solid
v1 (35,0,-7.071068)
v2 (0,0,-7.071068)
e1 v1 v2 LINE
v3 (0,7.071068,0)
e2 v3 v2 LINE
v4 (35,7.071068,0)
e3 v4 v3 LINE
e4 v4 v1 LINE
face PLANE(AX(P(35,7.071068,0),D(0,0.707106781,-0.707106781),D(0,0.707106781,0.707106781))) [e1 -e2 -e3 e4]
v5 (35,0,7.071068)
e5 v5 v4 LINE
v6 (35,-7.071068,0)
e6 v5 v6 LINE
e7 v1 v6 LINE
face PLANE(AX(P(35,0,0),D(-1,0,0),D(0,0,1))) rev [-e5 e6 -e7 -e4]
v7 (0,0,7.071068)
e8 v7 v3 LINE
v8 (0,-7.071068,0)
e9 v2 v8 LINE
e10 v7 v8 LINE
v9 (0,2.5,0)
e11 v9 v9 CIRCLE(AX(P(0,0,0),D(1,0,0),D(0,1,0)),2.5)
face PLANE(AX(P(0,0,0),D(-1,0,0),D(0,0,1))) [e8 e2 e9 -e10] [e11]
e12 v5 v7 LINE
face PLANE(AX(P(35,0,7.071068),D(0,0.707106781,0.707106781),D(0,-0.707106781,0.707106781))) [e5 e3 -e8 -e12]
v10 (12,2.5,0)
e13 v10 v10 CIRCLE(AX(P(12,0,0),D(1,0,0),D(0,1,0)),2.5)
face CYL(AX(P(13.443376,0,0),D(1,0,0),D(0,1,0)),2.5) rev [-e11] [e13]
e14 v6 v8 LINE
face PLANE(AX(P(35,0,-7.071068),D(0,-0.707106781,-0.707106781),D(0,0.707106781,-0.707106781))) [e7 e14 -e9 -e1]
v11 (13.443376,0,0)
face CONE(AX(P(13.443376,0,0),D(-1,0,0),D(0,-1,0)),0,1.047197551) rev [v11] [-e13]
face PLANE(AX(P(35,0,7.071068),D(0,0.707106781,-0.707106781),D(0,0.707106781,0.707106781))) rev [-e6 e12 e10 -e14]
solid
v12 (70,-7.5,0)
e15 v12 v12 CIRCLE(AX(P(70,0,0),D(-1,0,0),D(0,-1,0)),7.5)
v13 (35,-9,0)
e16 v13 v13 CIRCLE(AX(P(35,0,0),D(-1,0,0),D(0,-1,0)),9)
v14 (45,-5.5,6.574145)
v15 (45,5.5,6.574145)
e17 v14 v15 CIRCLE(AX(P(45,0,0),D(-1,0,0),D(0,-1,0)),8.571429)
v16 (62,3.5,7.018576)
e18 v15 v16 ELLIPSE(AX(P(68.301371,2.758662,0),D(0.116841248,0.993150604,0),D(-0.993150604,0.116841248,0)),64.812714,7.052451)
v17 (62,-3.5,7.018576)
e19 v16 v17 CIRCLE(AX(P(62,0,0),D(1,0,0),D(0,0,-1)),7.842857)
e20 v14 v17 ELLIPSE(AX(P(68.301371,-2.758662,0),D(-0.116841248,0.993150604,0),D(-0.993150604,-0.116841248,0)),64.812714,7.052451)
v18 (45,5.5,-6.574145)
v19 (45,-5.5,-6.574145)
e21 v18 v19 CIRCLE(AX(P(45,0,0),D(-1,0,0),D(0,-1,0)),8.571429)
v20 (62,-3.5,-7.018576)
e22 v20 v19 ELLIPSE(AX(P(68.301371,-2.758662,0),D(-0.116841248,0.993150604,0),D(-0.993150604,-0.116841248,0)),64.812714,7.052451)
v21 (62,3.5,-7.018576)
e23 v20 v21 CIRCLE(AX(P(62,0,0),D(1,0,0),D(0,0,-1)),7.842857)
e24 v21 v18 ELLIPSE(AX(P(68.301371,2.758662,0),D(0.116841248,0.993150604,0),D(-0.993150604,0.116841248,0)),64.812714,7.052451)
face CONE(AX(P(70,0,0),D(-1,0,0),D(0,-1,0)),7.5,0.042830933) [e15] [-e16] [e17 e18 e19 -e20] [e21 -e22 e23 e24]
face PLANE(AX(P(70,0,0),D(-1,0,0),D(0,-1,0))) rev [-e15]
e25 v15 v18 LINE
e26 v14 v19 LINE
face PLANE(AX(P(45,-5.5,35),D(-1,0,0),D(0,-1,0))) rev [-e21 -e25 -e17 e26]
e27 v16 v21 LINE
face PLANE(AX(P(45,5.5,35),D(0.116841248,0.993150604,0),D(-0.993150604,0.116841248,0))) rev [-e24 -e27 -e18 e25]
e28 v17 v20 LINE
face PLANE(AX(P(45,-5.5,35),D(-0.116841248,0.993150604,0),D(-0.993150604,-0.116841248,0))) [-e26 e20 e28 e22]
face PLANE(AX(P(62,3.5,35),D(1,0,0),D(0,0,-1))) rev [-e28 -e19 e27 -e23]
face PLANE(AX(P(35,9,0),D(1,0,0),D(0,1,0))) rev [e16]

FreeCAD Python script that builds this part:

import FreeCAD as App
import Part
import Sketcher

V = App.Vector
Q = App.Units.Quantity


def add_polygon(sketch, points):
    """Adds a closed chain of lines whose ends are joined by coincident constraints."""
    first, n = sketch.GeometryCount, len(points)
    for a, b in zip(points, points[1:] + points[:1]):
        sketch.addGeometry(Part.LineSegment(App.Vector(*a, 0), App.Vector(*b, 0)), False)
    for i in range(n):
        sketch.addConstraint(Sketcher.Constraint("Coincident", first + i, 2, first + (i + 1) % n, 1))

doc = App.newDocument("Part")
body = doc.addObject("PartDesign::Body", "Body")

# Sketch on YZ plane
sketch1 = body.newObject("Sketcher::SketchObject", "Sketch")
sketch1.AttachmentSupport = (doc.getObject("YZ_Plane"), [""])
sketch1.MapMode = "FlatFace"
add_polygon(sketch1, [(0, -7), (7, 0), (0, 7), (-7, 0)])  # lines 0-3
sketch1.addConstraint([
    Sketcher.Constraint("Symmetric", 0, 2, 2, 2, -1, 1),
    Sketcher.Constraint("Symmetric", 1, 2, 3, 2, -1, 1),
    Sketcher.Constraint("PointOnObject", 0, 2, -1),
    Sketcher.Constraint("PointOnObject", 1, 2, -2),
    Sketcher.Constraint("Perpendicular", 0, 1),
    Sketcher.Constraint("Distance", 0, 10.0),
])
pad1 = body.newObject("PartDesign::Pad", "Pad")
pad1.Profile = sketch1
pad1.Length = 35

# Sketch on XY plane
sketch2 = body.newObject("Sketcher::SketchObject", "Sketch001")
sketch2.AttachmentSupport = (doc.getObject("XY_Plane"), [""])
sketch2.MapMode = "FlatFace"
add_polygon(sketch2, [(13.4, 0), (12, 2.5), (0, 2.5), (0, 4), (-2, 0)])  # lines 0-4
sketch2.addConstraint([
    Sketcher.Constraint("Horizontal", 1),
    Sketcher.Constraint("Vertical", 2),
    Sketcher.Constraint("Horizontal", 4),
    Sketcher.Constraint("PointOnObject", 1, 2, -2),
    Sketcher.Constraint("PointOnObject", 3, 2, -1),
    Sketcher.Constraint("DistanceX", 1, 2, 1, 1, 12.0),
    Sketcher.Constraint("Angle", 0, Q("120 deg")),
    Sketcher.Constraint("DistanceY", -1, 1, 0, 2, 2.5),
    Sketcher.Constraint("DistanceY", 2, 1, 2, 2, 1.498542),
    Sketcher.Constraint("Distance", 3, 4.491069),
])
groove = body.newObject("PartDesign::Groove", "Groove")
groove.Profile = sketch2
groove.ReferenceAxis = (sketch2, ["H_Axis"])
groove.Angle = 360
body2 = doc.addObject("PartDesign::Body", "Body001")

# Sketch on XY plane
sketch3 = body2.newObject("Sketcher::SketchObject", "Sketch002")
sketch3.AttachmentSupport = (doc.getObject("XY_Plane001"), [""])
sketch3.MapMode = "FlatFace"
add_polygon(sketch3, [(70, 0), (70, 8), (35, 9), (35, 0)])  # lines 0-3
sketch3.addConstraint([
    Sketcher.Constraint("Vertical", 0),
    Sketcher.Constraint("Vertical", 2),
    Sketcher.Constraint("Horizontal", 3),
    Sketcher.Constraint("PointOnObject", 2, 2, -1),
    Sketcher.Constraint("DistanceX", 3, 1, 3, 2, 35.0),
    Sketcher.Constraint("DistanceY", 2, 2, 2, 1, 9.0),
    Sketcher.Constraint("DistanceY", 0, 1, 0, 2, 7.5),
    Sketcher.Constraint("DistanceX", -1, 1, 0, 2, 70.0),
])
revolution = body2.newObject("PartDesign::Revolution", "Revolution")
revolution.Profile = sketch3
revolution.ReferenceAxis = (sketch3, ["H_Axis"])
revolution.Angle = 360

# Sketch on XY plane
sketch4 = body2.newObject("Sketcher::SketchObject", "Sketch003")
sketch4.AttachmentSupport = (doc.getObject("XY_Plane001"), [""])
sketch4.MapMode = "FlatFace"
add_polygon(sketch4, [(45, 6), (45, -6), (62, -4), (62, 4)])  # lines 0-3
sketch4.addConstraint([
    Sketcher.Constraint("Vertical", 0),
    Sketcher.Constraint("Vertical", 2),
    Sketcher.Constraint("Equal", 1, 3),
    Sketcher.Constraint("DistanceY", 0, 2, 0, 1, 11.0),
    Sketcher.Constraint("DistanceY", 2, 1, 2, 2, 7.0),
    Sketcher.Constraint("DistanceX", -1, 1, 0, 2, 45.0),
    Sketcher.Constraint("DistanceX", -1, 1, 1, 2, 62.0),
    Sketcher.Constraint("DistanceY", 0, 2, -1, 1, 5.5),
])
pocket1 = body2.newObject("PartDesign::Pocket", "Pocket")
pocket1.Profile = sketch4
pocket1.Type = "ThroughAll"
pocket1.Midplane = True

doc.recompute()
